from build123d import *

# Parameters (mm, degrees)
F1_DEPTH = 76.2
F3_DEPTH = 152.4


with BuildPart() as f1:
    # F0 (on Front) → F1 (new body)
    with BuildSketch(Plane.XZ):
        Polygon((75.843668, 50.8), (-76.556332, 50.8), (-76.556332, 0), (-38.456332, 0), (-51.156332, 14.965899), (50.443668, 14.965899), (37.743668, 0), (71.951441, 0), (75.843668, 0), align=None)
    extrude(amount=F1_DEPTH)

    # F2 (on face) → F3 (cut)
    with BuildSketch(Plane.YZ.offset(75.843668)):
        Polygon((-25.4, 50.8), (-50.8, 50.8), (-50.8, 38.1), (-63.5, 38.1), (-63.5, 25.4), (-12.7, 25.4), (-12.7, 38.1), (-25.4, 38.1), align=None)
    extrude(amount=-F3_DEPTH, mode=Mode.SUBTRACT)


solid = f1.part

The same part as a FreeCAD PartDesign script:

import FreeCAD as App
import Part
import Sketcher

V = App.Vector
Q = App.Units.Quantity


def add_polygon(sketch, points):
    """Adds a closed chain of lines whose ends are joined by coincident constraints."""
    first, n = sketch.GeometryCount, len(points)
    for a, b in zip(points, points[1:] + points[:1]):
        sketch.addGeometry(Part.LineSegment(App.Vector(*a, 0), App.Vector(*b, 0)), False)
    for i in range(n):
        sketch.addConstraint(Sketcher.Constraint("Coincident", first + i, 2, first + (i + 1) % n, 1))

doc = App.newDocument("Part")
body = doc.addObject("PartDesign::Body", "Body")

# Sketch on XZ plane
sketch1 = body.newObject("Sketcher::SketchObject", "Sketch")
sketch1.AttachmentSupport = (doc.getObject("XZ_Plane"), [""])
sketch1.MapMode = "FlatFace"
add_polygon(sketch1, [(76, 51), (-77, 51), (-77, 0), (-38, 0), (-51, 15), (50, 15), (38, 0), (76, 0)])  # lines 0-7
sketch1.addConstraint([
    Sketcher.Constraint("Horizontal", 0),
    Sketcher.Constraint("Vertical", 1),
    Sketcher.Constraint("Horizontal", 2),
    Sketcher.Constraint("Horizontal", 4),
    Sketcher.Constraint("Horizontal", 6),
    Sketcher.Constraint("Vertical", 7),
    Sketcher.Constraint("PointOnObject", 1, 2, -1),
    Sketcher.Constraint("PointOnObject", 5, 2, -1),
    Sketcher.Constraint("Equal", 2, 6),
    Sketcher.Constraint("Equal", 3, 5),
    Sketcher.Constraint("DistanceX", 0, 2, 0, 1, Q("6 in")),
    Sketcher.Constraint("DistanceX", 4, 1, 4, 2, Q("4 in")),
    Sketcher.Constraint("DistanceY", 1, 2, 1, 1, Q("2 in")),
    Sketcher.Constraint("DistanceX", 2, 1, 2, 2, Q("1.5 in")),
    Sketcher.Constraint("DistanceY", -1, 1, 3, 2, 14.965899),
    Sketcher.Constraint("DistanceX", 0, 2, -1, 1, 76.556332),
])
pad1 = body.newObject("PartDesign::Pad", "Pad")
pad1.Profile = sketch1
pad1.Length = Q("3 in")

# Sketch on YZ plane
sketch2 = body.newObject("Sketcher::SketchObject", "Sketch001")
sketch2.AttachmentSupport = (doc.getObject("YZ_Plane"), [""])
sketch2.MapMode = "FlatFace"
sketch2.AttachmentOffset = App.Placement(V(0, 0, 75.843668), App.Rotation())
add_polygon(sketch2, [(-25, 51), (-51, 51), (-51, 38), (-64, 38), (-64, 25), (-13, 25), (-13, 38), (-25, 38)])  # lines 0-7
sketch2.addConstraint([
    Sketcher.Constraint("Horizontal", 0),
    Sketcher.Constraint("Vertical", 1),
    Sketcher.Constraint("Horizontal", 2),
    Sketcher.Constraint("Vertical", 3),
    Sketcher.Constraint("Horizontal", 4),
    Sketcher.Constraint("Vertical", 5),
    Sketcher.Constraint("Horizontal", 6),
    Sketcher.Constraint("Vertical", 7),
    Sketcher.Constraint("Horizontal", 2, 2, 5, 2),
    Sketcher.Constraint("Equal", 2, 6),
    Sketcher.Constraint("Equal", 6, 1),
    Sketcher.Constraint("Equal", 1, 3),
    Sketcher.Constraint("DistanceX", 0, 2, 0, 1, Q("1 in")),
    Sketcher.Constraint("DistanceX", 4, 1, 4, 2, Q("2 in")),
    Sketcher.Constraint("DistanceX", 0, 2, -1, 1, Q("2 in")),
    Sketcher.Constraint("DistanceY", -1, 1, 0, 2, Q("2 in")),
])
pocket1 = body.newObject("PartDesign::Pocket", "Pocket")
pocket1.Profile = sketch2
pocket1.Length = Q("6 in")

doc.recompute()
